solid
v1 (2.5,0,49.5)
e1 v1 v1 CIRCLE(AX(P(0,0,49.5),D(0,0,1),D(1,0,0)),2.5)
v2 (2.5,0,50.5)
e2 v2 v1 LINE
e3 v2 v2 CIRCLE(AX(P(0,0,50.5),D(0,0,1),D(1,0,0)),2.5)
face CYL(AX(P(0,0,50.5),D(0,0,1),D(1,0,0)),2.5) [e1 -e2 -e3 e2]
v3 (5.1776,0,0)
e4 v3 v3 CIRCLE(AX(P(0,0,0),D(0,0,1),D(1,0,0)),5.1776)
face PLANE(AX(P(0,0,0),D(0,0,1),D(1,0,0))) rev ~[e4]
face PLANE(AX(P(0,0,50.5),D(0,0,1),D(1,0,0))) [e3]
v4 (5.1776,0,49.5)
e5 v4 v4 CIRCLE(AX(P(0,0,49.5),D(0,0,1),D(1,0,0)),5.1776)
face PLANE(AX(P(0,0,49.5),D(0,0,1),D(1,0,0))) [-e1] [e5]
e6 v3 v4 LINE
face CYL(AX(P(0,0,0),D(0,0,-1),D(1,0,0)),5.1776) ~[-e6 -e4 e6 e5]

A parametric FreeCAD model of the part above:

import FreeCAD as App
import Part
import Sketcher

V = App.Vector

doc = App.newDocument("Part")
params = doc.addObject("Spreadsheet::Sheet", "Params")
for row, (alias, value) in enumerate([
    ("pad1_length", "50.5 mm"),
    ("sketch2_diameter", "5 mm"),
    ("pocket1_length", "1 mm"),
], start=1):
    params.set(f"A{row}", alias)
    params.set(f"B{row}", "=" + value)
    params.setAlias(f"B{row}", alias)

body = doc.addObject("PartDesign::Body", "Body")

sketch1 = doc.addObject("Sketcher::SketchObject", "Sketch")
body.addObject(sketch1)
sketch1.AttachmentSupport = (doc.XY_Plane, [""])
sketch1.MapMode = "FlatFace"
sketch1.addGeometry(Part.Circle(V(0, 0, 0), V(0, 0, 1), 5), False)
sketch1.addConstraint([
    Sketcher.Constraint("Coincident", 0, 3, -1, 1),
    Sketcher.Constraint("Diameter", 0, 10.3552),
])
pad1 = doc.addObject("PartDesign::Pad", "Pad")
body.addObject(pad1)
pad1.Profile = sketch1
pad1.setExpression("Length", "Params.pad1_length")

sketch2 = doc.addObject("Sketcher::SketchObject", "Sketch001")
body.addObject(sketch2)
sketch2.AttachmentSupport = (doc.XY_Plane, [""])
sketch2.MapMode = "FlatFace"
sketch2.AttachmentOffset = App.Placement(V(0, 0, 50.5), App.Rotation())
sketch2.addGeometry([
    Part.Circle(V(0, 0, 0), V(0, 0, 1), 5.2),
    Part.Circle(V(0, 0, 0), V(0, 0, 1), 2.5),
], False)
sketch2.addConstraint([
    Sketcher.Constraint("Coincident", 0, 3, -1, 1),
    Sketcher.Constraint("Coincident", 1, 3, -1, 1),
    Sketcher.Constraint("Diameter", 1, 5.0),
    Sketcher.Constraint("Diameter", 0, 10.3552),
])
sketch2.setExpression("Constraints[2]", "Params.sketch2_diameter")
pocket1 = doc.addObject("PartDesign::Pocket", "Pocket")
body.addObject(pocket1)
pocket1.Profile = sketch2
pocket1.setExpression("Length", "Params.pocket1_length")

doc.recompute()
